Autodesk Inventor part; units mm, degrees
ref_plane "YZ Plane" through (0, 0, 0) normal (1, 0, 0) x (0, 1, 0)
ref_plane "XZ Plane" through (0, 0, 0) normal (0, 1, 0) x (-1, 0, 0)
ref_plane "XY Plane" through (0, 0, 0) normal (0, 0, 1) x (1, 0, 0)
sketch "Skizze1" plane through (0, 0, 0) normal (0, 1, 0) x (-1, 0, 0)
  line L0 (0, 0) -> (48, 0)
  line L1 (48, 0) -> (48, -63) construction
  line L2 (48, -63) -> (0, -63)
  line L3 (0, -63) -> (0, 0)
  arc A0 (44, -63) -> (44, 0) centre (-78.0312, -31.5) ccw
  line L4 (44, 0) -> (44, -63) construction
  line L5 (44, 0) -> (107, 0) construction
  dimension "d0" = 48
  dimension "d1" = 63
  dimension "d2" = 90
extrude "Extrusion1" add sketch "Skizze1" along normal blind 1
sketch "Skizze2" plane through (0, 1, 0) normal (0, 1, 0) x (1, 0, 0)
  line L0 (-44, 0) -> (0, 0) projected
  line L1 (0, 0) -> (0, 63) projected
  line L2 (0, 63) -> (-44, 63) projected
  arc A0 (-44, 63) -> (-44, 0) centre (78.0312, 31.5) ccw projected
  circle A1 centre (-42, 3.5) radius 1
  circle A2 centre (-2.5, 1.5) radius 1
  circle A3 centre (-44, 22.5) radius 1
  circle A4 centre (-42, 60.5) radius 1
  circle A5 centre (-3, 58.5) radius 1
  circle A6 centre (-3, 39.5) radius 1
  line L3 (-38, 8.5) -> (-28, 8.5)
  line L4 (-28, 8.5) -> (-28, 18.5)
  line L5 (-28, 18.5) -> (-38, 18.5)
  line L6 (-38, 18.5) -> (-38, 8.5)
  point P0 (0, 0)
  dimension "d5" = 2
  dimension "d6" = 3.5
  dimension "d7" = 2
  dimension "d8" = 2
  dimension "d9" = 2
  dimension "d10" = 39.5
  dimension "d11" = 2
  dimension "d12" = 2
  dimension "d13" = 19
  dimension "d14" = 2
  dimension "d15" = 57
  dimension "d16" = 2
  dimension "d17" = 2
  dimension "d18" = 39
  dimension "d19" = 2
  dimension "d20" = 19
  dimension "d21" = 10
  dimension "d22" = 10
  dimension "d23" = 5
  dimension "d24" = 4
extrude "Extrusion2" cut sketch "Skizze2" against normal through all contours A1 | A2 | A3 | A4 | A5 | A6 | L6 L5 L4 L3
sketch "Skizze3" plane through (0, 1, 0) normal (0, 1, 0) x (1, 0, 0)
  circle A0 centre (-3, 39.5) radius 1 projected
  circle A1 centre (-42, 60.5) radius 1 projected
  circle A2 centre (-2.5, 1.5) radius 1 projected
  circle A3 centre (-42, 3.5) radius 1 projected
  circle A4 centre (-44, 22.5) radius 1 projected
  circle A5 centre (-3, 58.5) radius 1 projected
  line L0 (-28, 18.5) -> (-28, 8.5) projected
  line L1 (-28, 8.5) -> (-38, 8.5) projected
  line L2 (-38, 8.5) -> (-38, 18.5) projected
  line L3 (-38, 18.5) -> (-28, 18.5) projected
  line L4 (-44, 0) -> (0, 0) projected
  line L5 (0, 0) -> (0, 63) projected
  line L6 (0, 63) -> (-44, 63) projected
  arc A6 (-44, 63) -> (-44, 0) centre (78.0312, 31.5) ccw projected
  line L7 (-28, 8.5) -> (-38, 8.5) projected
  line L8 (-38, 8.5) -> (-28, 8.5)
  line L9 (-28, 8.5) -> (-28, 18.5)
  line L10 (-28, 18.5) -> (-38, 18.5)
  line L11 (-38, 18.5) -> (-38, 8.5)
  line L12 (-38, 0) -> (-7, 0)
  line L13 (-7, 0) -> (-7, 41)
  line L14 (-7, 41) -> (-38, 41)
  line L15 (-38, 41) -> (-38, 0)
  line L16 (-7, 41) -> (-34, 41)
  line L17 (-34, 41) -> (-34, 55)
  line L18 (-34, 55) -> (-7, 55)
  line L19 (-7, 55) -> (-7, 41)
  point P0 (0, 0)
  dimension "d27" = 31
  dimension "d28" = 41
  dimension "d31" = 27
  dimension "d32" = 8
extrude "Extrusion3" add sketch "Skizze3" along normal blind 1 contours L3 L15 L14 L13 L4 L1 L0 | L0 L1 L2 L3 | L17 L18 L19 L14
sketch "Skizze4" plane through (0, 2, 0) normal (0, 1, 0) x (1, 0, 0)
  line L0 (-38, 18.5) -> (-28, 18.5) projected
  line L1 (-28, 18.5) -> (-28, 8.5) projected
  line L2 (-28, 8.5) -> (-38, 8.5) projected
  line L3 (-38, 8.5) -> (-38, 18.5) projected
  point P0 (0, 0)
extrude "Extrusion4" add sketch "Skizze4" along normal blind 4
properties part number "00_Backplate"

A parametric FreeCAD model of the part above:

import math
import FreeCAD as App
import Part
import Sketcher

V = App.Vector


def add_polygon(sketch, points):
    """Adds a closed chain of lines whose ends are joined by coincident constraints."""
    first, n = sketch.GeometryCount, len(points)
    for a, b in zip(points, points[1:] + points[:1]):
        sketch.addGeometry(Part.LineSegment(App.Vector(*a, 0), App.Vector(*b, 0)), False)
    for i in range(n):
        sketch.addConstraint(Sketcher.Constraint("Coincident", first + i, 2, first + (i + 1) % n, 1))

doc = App.newDocument("Part")
params = doc.addObject("Spreadsheet::Sheet", "Params")
for row, (alias, value) in enumerate([
    ("sketch1_height", "63 mm"),
    ("sketch1_width", "44 mm"),
    ("pad1_length", "1 mm"),
    ("sketch2_diameter", "2 mm"),
    ("sketch2_width", "10 mm"),
    ("sketch3_width", "31 mm"),
    ("sketch3_width2", "27 mm"),
    ("sketch3_height", "41 mm"),
    ("sketch3_height2", "55 mm"),
    ("pad2_length", "1 mm"),
    ("sketch4_width", "10 mm"),
    ("pad3_length", "4 mm"),
], start=1):
    params.set(f"A{row}", alias)
    params.set(f"B{row}", "=" + value)
    params.setAlias(f"B{row}", alias)

body = doc.addObject("PartDesign::Body", "Body")

# Sketch on XZ plane
sketch1 = body.newObject("Sketcher::SketchObject", "Sketch")
sketch1.AttachmentSupport = (doc.getObject("XZ_Plane"), [""])
sketch1.MapMode = "FlatFace"
sketch1.addGeometry([
    Part.LineSegment(V(-44, 0, 0), V(0, 0, 0)),
    Part.LineSegment(V(0, 0, 0), V(0, -63, 0)),
    Part.LineSegment(V(0, -63, 0), V(-44, -63, 0)),
    Part.ArcOfCircle(Part.Circle(V(78, -32, 0), V(0, 0, 1), 126), math.radians(166), math.radians(194)),
], False)
sketch1.addConstraint([
    Sketcher.Constraint("Coincident", 0, 2, 1, 1),
    Sketcher.Constraint("Coincident", 1, 2, 2, 1),
    Sketcher.Constraint("Coincident", 2, 2, 3, 2),
    Sketcher.Constraint("Coincident", 3, 1, 0, 1),
    Sketcher.Constraint("Horizontal", 0),
    Sketcher.Constraint("Vertical", 1),
    Sketcher.Constraint("Horizontal", 2),
    Sketcher.Constraint("Coincident", 0, 2, -1, 1),
    Sketcher.Constraint("Vertical", 2, 2, 3, 1),
    Sketcher.Constraint("DistanceY", 1, 2, 1, 1, 63.0),
    Sketcher.Constraint("DistanceX", 0, 1, 0, 2, 44.0),
    Sketcher.Constraint("Radius", 3, 126.0312),
])
sketch1.setExpression("Constraints[9]", "Params.sketch1_height")
sketch1.setExpression("Constraints[10]", "Params.sketch1_width")
pad1 = body.newObject("PartDesign::Pad", "Pad")
pad1.Profile = sketch1
pad1.setExpression("Length", "Params.pad1_length")
pad1.Reversed = True

# Sketch on XZ plane
sketch2 = body.newObject("Sketcher::SketchObject", "Sketch001")
sketch2.AttachmentSupport = (doc.getObject("XZ_Plane"), [""])
sketch2.MapMode = "FlatFace"
sketch2.AttachmentOffset = App.Placement(V(0, 0, -1), App.Rotation())
sketch2.addGeometry(Part.Circle(V(-42, -3.5, 0), V(0, 0, 1), 1), False)  # 0
sketch2.addGeometry(Part.Circle(V(-2.5, -1.5, 0), V(0, 0, 1), 1), False)  # 1
sketch2.addGeometry(Part.Circle(V(-44, -22.5, 0), V(0, 0, 1), 1), False)  # 2
sketch2.addGeometry(Part.Circle(V(-42, -60.5, 0), V(0, 0, 1), 1), False)  # 3
sketch2.addGeometry(Part.Circle(V(-3, -58.5, 0), V(0, 0, 1), 1), False)  # 4
sketch2.addGeometry(Part.Circle(V(-3, -39.5, 0), V(0, 0, 1), 1), False)  # 5
add_polygon(sketch2, [(-38, -18.5), (-38, -8.5), (-28, -8.5), (-28, -18.5)])  # lines 6-9
sketch2.addConstraint([
    Sketcher.Constraint("Vertical", 6),
    Sketcher.Constraint("Horizontal", 7),
    Sketcher.Constraint("Vertical", 8),
    Sketcher.Constraint("Horizontal", 9),
    Sketcher.Constraint("Equal", 0, 1),
    Sketcher.Constraint("Equal", 1, 2),
    Sketcher.Constraint("Equal", 2, 3),
    Sketcher.Constraint("Equal", 3, 4),
    Sketcher.Constraint("Equal", 4, 5),
    Sketcher.Constraint("Vertical", 0, 3, 3, 3),
    Sketcher.Constraint("Vertical", 4, 3, 5, 3),
    Sketcher.Constraint("Equal", 9, 6),
    Sketcher.Constraint("Diameter", 0, 2.0),
    Sketcher.Constraint("DistanceX", 7, 1, 7, 2, 10.0),
    Sketcher.Constraint("DistanceY", 0, 3, 1, 3, 2.0),
    Sketcher.Constraint("DistanceX", 2, 3, 0, 3, 2.0),
    Sketcher.Constraint("DistanceY", 2, 3, 0, 3, 19.0),
    Sketcher.Constraint("DistanceY", 3, 3, 0, 3, 57.0),
    Sketcher.Constraint("DistanceX", 3, 3, 4, 3, 39.0),
    Sketcher.Constraint("DistanceY", 3, 3, 4, 3, 2.0),
    Sketcher.Constraint("DistanceY", 4, 3, 5, 3, 19.0),
    Sketcher.Constraint("DistanceX", 0, 3, 6, 2, 4.0),
    Sketcher.Constraint("DistanceY", 6, 2, 0, 3, 5.0),
    Sketcher.Constraint("DistanceY", 0, 3, -1, 1, 3.5),
    Sketcher.Constraint("DistanceX", 0, 3, 1, 3, 39.5),
    Sketcher.Constraint("DistanceX", 0, 3, -1, 1, 42.0),
])
sketch2.setExpression("Constraints[16]", "Params.sketch2_diameter")
sketch2.setExpression("Constraints[17]", "Params.sketch2_width")
pocket1 = body.newObject("PartDesign::Pocket", "Pocket")
pocket1.Profile = sketch2
pocket1.Type = "ThroughAll"
pocket1.Reversed = True

# Sketch on XZ plane
sketch3 = body.newObject("Sketcher::SketchObject", "Sketch002")
sketch3.AttachmentSupport = (doc.getObject("XZ_Plane"), [""])
sketch3.MapMode = "FlatFace"
sketch3.AttachmentOffset = App.Placement(V(0, 0, -1), App.Rotation())
add_polygon(sketch3, [(-38, -41), (-38, 0), (-7, 0), (-7, -55), (-34, -55), (-34, -41)])  # lines 0-5
sketch3.addConstraint([
    Sketcher.Constraint("Vertical", 0),
    Sketcher.Constraint("Horizontal", 1),
    Sketcher.Constraint("Vertical", 2),
    Sketcher.Constraint("Horizontal", 3),
    Sketcher.Constraint("Vertical", 4),
    Sketcher.Constraint("Horizontal", 5),
    Sketcher.Constraint("PointOnObject", 0, 2, -1),
    Sketcher.Constraint("DistanceX", 1, 1, 1, 2, 31.0),
    Sketcher.Constraint("DistanceX", 3, 2, 3, 1, 27.0),
    Sketcher.Constraint("DistanceY", 0, 1, 0, 2, 41.0),
    Sketcher.Constraint("DistanceY", 2, 2, 2, 1, 55.0),
    Sketcher.Constraint("DistanceX", 0, 2, -1, 1, 38.0),
])
sketch3.setExpression("Constraints[13]", "Params.sketch3_width")
sketch3.setExpression("Constraints[14]", "Params.sketch3_width2")
sketch3.setExpression("Constraints[15]", "Params.sketch3_height")
sketch3.setExpression("Constraints[16]", "Params.sketch3_height2")
pad2 = body.newObject("PartDesign::Pad", "Pad001")
pad2.Profile = sketch3
pad2.setExpression("Length", "Params.pad2_length")
pad2.Reversed = True

# Sketch on XZ plane
sketch4 = body.newObject("Sketcher::SketchObject", "Sketch003")
sketch4.AttachmentSupport = (doc.getObject("XZ_Plane"), [""])
sketch4.MapMode = "FlatFace"
sketch4.AttachmentOffset = App.Placement(V(0, 0, -2), App.Rotation())
add_polygon(sketch4, [(-28, -18), (-38, -18), (-38, -8), (-28, -8)])  # lines 0-3
sketch4.addConstraint([
    Sketcher.Constraint("Horizontal", 0),
    Sketcher.Constraint("Vertical", 1),
    Sketcher.Constraint("Horizontal", 2),
    Sketcher.Constraint("Vertical", 3),
    Sketcher.Constraint("Equal", 2, 1),
    Sketcher.Constraint("DistanceX", 0, 2, 0, 1, 10.0),
    Sketcher.Constraint("DistanceX", 0, 2, -1, 1, 38.0),
    Sketcher.Constraint("DistanceY", 0, 2, -1, 1, 18.5),
])
sketch4.setExpression("Constraints[9]", "Params.sketch4_width")
pad3 = body.newObject("PartDesign::Pad", "Pad002")
pad3.Profile = sketch4
pad3.setExpression("Length", "Params.pad3_length")
pad3.Reversed = True

doc.recompute()
